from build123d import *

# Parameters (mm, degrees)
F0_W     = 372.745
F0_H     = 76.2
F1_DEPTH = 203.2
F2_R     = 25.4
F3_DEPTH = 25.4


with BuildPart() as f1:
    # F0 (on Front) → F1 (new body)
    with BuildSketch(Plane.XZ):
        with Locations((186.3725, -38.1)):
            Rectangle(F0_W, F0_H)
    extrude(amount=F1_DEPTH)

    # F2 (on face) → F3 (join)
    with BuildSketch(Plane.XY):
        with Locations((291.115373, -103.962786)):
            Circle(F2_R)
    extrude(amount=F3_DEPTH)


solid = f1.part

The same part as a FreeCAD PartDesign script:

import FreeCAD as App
import Part
import Sketcher
Q = App.Units.Quantity

doc = App.newDocument("Part")
body = doc.addObject("PartDesign::Body", "Body")

sketch1 = body.newObject("Sketcher::SketchObject", "Sketch")
sketch1.AttachmentSupport = (doc.getObject("XZ_Plane"), [""])
sketch1.MapMode = "FlatFace"
sketch1.addGeometry(Part.LineSegment(App.Vector(0, 0, 0), App.Vector(0, -76, 0)), False)
sketch1.addGeometry(Part.LineSegment(App.Vector(0, -76, 0), App.Vector(373, -76, 0)), False)
sketch1.addGeometry(Part.LineSegment(App.Vector(373, -76, 0), App.Vector(373, 0, 0)), False)
sketch1.addGeometry(Part.LineSegment(App.Vector(373, 0, 0), App.Vector(0, 0, 0)), False)
sketch1.addConstraint(Sketcher.Constraint("Coincident", 0, 2, 1, 1))
sketch1.addConstraint(Sketcher.Constraint("Coincident", 1, 2, 2, 1))
sketch1.addConstraint(Sketcher.Constraint("Coincident", 2, 2, 3, 1))
sketch1.addConstraint(Sketcher.Constraint("Coincident", 3, 2, 0, 1))
sketch1.addConstraint(Sketcher.Constraint("Vertical", 0))
sketch1.addConstraint(Sketcher.Constraint("Horizontal", 1))
sketch1.addConstraint(Sketcher.Constraint("Vertical", 2))
sketch1.addConstraint(Sketcher.Constraint("Horizontal", 3))
sketch1.addConstraint(Sketcher.Constraint("Coincident", 3, 2, -1, 1))
sketch1.addConstraint(Sketcher.Constraint("DistanceY", 0, 2, 0, 1, Q("3 in")))
sketch1.addConstraint(Sketcher.Constraint("DistanceX", 1, 1, 1, 2, Q("14.675 in")))
pad1 = body.newObject("PartDesign::Pad", "Pad")
pad1.Profile = sketch1
pad1.Length = Q("8 in")

sketch2 = body.newObject("Sketcher::SketchObject", "Sketch001")
sketch2.AttachmentSupport = (doc.getObject("XY_Plane"), [""])
sketch2.MapMode = "FlatFace"
sketch2.addGeometry(Part.Circle(App.Vector(291, -104, 0), App.Vector(0, 0, 1), 25), False)
sketch2.addConstraint(Sketcher.Constraint("Diameter", 0, Q("2 in")))
sketch2.addConstraint(Sketcher.Constraint("DistanceX", -1, 1, 0, 3, Q("291.115373 mm")))
sketch2.addConstraint(Sketcher.Constraint("DistanceY", 0, 3, -1, 1, Q("103.962786 mm")))
pad2 = body.newObject("PartDesign::Pad", "Pad001")
pad2.Profile = sketch2
pad2.Length = Q("1 in")

doc.recompute()
